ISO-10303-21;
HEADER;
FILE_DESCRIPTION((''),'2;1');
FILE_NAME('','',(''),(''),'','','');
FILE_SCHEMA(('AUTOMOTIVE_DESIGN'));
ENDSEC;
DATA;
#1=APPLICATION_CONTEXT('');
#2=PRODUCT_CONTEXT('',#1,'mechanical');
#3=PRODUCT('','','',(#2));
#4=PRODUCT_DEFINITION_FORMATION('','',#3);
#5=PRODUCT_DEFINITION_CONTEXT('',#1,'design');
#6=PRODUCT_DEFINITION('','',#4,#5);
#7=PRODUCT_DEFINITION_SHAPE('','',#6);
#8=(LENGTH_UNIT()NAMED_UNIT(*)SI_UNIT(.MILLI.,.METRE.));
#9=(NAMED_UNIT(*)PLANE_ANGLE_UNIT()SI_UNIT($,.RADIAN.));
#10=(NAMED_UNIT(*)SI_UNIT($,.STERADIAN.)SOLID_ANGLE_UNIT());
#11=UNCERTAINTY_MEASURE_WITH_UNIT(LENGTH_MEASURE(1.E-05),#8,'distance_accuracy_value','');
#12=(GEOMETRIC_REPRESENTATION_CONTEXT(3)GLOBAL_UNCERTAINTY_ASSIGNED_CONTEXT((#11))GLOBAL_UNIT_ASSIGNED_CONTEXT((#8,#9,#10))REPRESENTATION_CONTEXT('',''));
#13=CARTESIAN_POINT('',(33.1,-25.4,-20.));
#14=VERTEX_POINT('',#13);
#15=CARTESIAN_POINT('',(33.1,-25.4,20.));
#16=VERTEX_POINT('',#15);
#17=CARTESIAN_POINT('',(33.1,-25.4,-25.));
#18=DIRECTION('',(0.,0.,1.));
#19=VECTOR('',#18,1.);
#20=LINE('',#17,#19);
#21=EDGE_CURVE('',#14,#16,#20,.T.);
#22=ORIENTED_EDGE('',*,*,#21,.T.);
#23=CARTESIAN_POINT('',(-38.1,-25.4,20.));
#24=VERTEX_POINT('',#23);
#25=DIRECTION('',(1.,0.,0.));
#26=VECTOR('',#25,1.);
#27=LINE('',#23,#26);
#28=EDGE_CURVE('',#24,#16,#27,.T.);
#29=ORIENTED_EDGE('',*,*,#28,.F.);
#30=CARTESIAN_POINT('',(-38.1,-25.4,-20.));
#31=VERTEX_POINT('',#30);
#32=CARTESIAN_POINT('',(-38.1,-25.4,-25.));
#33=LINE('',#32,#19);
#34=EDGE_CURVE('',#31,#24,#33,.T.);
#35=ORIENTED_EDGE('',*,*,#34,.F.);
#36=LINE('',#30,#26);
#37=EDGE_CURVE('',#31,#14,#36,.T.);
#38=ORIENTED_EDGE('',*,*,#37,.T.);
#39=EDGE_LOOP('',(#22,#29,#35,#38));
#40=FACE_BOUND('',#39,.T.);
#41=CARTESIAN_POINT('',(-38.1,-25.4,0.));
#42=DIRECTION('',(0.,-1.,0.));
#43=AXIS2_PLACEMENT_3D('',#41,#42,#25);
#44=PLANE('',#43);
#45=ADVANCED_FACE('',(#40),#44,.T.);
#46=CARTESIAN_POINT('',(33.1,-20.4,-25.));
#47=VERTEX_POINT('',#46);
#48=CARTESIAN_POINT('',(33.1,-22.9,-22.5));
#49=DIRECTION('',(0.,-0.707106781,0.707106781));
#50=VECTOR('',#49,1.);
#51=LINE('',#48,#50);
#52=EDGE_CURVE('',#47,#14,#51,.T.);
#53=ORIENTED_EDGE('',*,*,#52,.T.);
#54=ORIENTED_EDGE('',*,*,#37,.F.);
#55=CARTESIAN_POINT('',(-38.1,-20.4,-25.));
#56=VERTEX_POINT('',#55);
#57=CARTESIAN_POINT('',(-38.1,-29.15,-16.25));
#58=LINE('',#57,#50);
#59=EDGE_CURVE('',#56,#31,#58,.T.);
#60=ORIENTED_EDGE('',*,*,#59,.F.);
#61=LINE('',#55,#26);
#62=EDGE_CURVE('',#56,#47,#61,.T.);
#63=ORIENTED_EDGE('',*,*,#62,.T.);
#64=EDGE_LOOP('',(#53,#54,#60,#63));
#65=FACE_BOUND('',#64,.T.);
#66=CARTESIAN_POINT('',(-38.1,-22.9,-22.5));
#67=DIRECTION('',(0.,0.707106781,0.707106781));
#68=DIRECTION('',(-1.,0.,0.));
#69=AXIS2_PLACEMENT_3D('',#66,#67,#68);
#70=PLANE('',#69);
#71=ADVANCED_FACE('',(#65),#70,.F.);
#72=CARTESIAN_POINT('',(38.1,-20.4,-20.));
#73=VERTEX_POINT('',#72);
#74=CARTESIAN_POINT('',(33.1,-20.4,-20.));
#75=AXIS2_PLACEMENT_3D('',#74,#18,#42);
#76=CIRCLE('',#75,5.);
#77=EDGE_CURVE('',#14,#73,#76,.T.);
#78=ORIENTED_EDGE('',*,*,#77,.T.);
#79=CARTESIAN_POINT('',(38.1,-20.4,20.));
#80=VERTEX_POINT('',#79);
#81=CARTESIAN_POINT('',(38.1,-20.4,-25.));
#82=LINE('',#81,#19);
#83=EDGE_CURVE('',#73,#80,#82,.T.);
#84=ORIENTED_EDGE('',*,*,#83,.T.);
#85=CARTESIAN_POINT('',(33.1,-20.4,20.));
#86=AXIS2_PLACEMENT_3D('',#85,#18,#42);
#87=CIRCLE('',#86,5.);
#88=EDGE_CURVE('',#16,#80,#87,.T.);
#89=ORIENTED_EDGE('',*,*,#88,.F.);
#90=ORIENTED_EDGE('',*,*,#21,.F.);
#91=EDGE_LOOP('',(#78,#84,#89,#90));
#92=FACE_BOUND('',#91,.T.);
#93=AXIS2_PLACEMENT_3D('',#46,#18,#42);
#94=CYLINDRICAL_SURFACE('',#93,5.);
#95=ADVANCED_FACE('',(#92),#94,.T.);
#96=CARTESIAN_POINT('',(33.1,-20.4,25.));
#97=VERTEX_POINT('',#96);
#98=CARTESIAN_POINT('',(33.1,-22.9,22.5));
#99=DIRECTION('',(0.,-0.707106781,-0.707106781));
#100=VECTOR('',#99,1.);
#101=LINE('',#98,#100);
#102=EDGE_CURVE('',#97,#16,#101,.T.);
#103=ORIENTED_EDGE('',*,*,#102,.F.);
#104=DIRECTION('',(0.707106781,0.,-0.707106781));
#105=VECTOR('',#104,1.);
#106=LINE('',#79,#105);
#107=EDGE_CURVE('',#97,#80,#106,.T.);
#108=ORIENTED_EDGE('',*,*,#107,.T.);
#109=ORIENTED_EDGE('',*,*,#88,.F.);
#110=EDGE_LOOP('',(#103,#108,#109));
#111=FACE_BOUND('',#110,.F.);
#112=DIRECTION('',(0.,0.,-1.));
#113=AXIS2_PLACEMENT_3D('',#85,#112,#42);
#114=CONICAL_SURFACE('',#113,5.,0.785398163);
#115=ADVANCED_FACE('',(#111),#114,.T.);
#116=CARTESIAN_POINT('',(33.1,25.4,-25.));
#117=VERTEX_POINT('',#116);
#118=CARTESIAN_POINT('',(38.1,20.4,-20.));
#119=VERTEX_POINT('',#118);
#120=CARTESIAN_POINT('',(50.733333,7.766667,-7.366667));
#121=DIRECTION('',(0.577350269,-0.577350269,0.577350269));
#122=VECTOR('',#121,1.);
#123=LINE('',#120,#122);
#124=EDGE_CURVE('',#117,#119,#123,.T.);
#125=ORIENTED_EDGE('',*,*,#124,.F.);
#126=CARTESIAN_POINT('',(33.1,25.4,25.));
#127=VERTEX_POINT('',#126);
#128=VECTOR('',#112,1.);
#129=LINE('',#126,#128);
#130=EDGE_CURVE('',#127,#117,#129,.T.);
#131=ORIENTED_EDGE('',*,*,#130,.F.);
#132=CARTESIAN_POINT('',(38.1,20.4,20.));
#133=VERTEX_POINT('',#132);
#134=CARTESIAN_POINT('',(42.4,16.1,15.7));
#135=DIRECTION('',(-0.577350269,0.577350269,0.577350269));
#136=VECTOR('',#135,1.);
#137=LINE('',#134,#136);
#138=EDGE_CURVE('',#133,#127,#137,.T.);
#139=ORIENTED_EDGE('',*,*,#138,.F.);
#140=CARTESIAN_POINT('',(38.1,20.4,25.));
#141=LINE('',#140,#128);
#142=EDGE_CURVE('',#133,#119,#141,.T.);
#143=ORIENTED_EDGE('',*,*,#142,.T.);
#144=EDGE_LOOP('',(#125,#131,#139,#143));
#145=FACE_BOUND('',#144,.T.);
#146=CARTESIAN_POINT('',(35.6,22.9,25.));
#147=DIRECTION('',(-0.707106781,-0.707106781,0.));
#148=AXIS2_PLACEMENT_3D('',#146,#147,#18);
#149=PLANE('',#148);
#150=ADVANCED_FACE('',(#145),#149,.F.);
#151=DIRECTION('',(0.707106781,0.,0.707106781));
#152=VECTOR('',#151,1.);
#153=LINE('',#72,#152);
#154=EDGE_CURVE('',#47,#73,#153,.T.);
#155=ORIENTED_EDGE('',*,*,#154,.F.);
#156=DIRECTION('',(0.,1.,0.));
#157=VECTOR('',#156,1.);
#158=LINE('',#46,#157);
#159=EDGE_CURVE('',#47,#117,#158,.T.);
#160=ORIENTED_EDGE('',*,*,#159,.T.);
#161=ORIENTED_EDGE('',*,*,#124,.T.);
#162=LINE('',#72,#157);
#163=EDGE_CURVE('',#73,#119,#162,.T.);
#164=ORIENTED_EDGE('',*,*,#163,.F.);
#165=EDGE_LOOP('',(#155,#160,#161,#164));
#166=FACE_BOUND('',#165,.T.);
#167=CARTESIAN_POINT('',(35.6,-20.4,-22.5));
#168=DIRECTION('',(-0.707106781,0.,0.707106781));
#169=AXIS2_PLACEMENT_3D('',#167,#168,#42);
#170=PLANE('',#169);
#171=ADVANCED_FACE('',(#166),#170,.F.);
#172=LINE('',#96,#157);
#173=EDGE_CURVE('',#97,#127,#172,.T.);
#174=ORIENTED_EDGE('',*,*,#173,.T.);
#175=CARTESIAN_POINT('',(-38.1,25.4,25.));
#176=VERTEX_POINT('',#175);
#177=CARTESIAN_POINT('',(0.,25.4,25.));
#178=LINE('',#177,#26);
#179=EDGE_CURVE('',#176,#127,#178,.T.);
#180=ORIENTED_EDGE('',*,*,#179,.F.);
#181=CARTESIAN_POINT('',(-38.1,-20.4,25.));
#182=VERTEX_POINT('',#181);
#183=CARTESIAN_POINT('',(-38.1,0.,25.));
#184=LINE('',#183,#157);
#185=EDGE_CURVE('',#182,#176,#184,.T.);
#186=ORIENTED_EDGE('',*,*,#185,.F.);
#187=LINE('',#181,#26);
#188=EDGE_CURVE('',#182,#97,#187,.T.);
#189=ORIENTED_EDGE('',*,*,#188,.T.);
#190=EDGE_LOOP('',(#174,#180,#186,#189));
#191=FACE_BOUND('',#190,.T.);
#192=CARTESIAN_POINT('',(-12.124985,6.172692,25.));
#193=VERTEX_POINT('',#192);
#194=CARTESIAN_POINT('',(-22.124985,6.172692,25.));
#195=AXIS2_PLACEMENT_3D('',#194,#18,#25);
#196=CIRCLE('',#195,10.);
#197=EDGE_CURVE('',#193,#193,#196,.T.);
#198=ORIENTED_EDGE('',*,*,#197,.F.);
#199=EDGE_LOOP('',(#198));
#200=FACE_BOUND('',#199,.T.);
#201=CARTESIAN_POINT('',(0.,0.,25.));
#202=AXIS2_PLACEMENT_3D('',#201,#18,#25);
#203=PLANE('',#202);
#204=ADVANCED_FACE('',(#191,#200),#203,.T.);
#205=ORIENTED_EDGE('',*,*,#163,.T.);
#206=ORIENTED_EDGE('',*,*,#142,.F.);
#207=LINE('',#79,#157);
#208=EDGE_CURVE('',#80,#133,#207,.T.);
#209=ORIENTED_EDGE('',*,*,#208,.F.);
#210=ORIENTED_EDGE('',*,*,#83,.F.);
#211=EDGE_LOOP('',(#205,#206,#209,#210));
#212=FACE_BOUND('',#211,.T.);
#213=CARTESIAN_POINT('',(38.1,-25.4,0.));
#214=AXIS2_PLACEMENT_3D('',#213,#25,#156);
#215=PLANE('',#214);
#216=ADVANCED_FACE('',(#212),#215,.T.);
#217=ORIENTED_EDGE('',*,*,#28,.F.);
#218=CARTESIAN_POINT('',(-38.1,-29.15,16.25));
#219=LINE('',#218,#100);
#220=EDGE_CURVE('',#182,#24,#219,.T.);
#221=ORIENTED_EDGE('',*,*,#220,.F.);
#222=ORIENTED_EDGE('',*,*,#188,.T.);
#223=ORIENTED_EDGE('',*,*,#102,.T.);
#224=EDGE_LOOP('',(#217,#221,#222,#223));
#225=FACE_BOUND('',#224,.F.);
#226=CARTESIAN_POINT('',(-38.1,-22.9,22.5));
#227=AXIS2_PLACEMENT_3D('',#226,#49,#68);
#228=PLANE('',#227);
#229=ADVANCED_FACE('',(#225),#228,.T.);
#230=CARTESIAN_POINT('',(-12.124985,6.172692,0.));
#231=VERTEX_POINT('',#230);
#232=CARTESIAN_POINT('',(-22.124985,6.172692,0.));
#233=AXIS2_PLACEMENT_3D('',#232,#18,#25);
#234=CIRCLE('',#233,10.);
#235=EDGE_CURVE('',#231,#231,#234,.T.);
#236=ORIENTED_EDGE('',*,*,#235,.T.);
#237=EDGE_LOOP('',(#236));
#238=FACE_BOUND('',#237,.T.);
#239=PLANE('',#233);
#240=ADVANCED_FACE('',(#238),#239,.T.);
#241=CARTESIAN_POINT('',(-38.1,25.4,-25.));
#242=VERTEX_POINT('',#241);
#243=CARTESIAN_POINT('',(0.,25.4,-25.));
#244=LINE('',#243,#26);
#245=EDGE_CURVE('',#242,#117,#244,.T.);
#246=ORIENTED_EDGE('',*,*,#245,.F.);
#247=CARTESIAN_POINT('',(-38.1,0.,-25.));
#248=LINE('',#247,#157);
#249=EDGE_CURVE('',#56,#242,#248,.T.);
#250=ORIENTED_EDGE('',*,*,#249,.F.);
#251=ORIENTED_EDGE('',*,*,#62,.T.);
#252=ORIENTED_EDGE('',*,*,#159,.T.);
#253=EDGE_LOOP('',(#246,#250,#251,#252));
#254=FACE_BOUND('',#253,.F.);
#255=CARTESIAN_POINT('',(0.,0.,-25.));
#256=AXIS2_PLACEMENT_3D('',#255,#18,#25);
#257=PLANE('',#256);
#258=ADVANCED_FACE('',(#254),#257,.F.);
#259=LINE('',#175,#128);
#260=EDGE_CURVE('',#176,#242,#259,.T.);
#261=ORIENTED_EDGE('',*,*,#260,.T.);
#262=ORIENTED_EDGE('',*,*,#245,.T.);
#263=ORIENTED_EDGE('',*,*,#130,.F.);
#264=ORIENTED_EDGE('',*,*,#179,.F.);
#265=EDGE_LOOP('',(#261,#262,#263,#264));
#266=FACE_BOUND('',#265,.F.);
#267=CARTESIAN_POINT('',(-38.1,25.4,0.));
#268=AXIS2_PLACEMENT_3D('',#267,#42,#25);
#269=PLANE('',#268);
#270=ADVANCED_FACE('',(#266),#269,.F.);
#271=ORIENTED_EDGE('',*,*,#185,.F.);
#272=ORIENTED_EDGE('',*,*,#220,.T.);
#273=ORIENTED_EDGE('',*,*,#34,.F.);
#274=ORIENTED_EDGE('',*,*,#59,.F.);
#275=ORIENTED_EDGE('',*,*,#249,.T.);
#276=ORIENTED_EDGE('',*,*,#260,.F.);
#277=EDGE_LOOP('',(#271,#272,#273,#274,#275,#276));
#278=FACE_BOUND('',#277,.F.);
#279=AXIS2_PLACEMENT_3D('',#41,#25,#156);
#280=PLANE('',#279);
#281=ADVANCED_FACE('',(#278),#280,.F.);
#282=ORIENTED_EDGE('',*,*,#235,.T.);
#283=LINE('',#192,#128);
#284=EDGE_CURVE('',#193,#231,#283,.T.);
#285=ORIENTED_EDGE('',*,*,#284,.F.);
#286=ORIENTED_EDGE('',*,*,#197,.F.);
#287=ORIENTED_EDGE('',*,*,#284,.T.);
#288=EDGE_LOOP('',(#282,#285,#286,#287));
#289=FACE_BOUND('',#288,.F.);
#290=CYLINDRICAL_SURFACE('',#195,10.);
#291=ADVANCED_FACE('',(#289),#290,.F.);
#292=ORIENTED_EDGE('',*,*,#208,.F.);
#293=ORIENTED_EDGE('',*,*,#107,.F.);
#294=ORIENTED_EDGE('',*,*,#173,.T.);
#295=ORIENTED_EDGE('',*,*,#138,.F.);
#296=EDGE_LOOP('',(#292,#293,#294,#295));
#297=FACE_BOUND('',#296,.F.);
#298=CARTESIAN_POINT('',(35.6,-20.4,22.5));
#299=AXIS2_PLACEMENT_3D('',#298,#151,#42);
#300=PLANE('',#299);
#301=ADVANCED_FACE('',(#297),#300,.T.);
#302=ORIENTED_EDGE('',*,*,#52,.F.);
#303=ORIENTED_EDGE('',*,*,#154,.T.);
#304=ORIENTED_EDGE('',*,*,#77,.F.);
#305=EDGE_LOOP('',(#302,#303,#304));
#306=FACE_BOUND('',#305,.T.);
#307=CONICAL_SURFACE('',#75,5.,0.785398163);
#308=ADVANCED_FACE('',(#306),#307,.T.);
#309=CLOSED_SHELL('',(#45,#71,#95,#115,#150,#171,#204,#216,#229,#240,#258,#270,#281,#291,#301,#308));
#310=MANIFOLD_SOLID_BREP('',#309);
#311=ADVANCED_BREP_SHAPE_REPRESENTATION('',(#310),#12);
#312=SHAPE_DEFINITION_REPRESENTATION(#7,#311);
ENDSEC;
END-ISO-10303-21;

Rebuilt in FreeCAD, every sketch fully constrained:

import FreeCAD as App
import Part
import Sketcher

V = App.Vector
Q = App.Units.Quantity


def edges_at(feature, points):
    """Names of the edges that pass closest to the given points."""
    edges = feature.Shape.Edges
    near = lambda p: min(range(len(edges)), key=lambda i: edges[i].distToShape(Part.Vertex(*p))[0])
    return sorted({f"Edge{near(p) + 1}" for p in points})


def add_polygon(sketch, points):
    """Adds a closed chain of lines whose ends are joined by coincident constraints."""
    first, n = sketch.GeometryCount, len(points)
    for a, b in zip(points, points[1:] + points[:1]):
        sketch.addGeometry(Part.LineSegment(App.Vector(*a, 0), App.Vector(*b, 0)), False)
    for i in range(n):
        sketch.addConstraint(Sketcher.Constraint("Coincident", first + i, 2, first + (i + 1) % n, 1))

doc = App.newDocument("Part")
params = doc.addObject("Spreadsheet::Sheet", "Params")
for row, (alias, value) in enumerate([
    ("sketch1_width", "76.2 mm"),
    ("sketch1_height", "50.8 mm"),
    ("pad1_length", "50 mm"),
    ("sketch2_diameter", "20 mm"),
    ("pocket1_length", "25 mm"),
    ("fillet_radius", "5 mm"),
    ("chamfer_size", "5 mm"),
], start=1):
    params.set(f"A{row}", alias)
    params.set(f"B{row}", "=" + value)
    params.setAlias(f"B{row}", alias)

body = doc.addObject("PartDesign::Body", "Body")

sketch1 = body.newObject("Sketcher::SketchObject", "Sketch")
sketch1.AttachmentSupport = (doc.getObject("XY_Plane"), [""])
sketch1.MapMode = "FlatFace"
add_polygon(sketch1, [(-38, 25), (-38, -25), (38, -25), (38, 25)])
sketch1.addConstraint(Sketcher.Constraint("Vertical", 0))
sketch1.addConstraint(Sketcher.Constraint("Horizontal", 1))
sketch1.addConstraint(Sketcher.Constraint("Vertical", 2))
sketch1.addConstraint(Sketcher.Constraint("Horizontal", 3))
sketch1.addConstraint(Sketcher.Constraint("Symmetric", 0, 2, 2, 2, -1, 1))
sketch1.addConstraint(Sketcher.Constraint("DistanceX", 1, 1, 1, 2, Q("76.2 mm")))
sketch1.addConstraint(Sketcher.Constraint("DistanceY", 0, 2, 0, 1, Q("50.8 mm")))
sketch1.setExpression("Constraints[9]", "Params.sketch1_width")
sketch1.setExpression("Constraints[10]", "Params.sketch1_height")
pad1 = body.newObject("PartDesign::Pad", "Pad")
pad1.Profile = sketch1
pad1.setExpression("Length", "Params.pad1_length")
pad1.Midplane = True

sketch2 = body.newObject("Sketcher::SketchObject", "Sketch001")
sketch2.AttachmentSupport = (doc.getObject("XY_Plane"), [""])
sketch2.MapMode = "FlatFace"
sketch2.AttachmentOffset = App.Placement(V(0, 0, 25), App.Rotation())
sketch2.addGeometry(Part.Circle(V(-22, 6, 0), V(0, 0, 1), 10), False)
sketch2.addConstraint(Sketcher.Constraint("Diameter", 0, Q("20 mm")))
sketch2.addConstraint(Sketcher.Constraint("DistanceY", -1, 1, 0, 3, Q("6.172692 mm")))
sketch2.addConstraint(Sketcher.Constraint("DistanceX", 0, 3, -1, 1, Q("22.124985 mm")))
sketch2.setExpression("Constraints[0]", "Params.sketch2_diameter")
pocket1 = body.newObject("PartDesign::Pocket", "Pocket")
pocket1.Profile = sketch2
pocket1.setExpression("Length", "Params.pocket1_length")
doc.recompute()

fillet = body.newObject("PartDesign::Fillet", "Fillet")
fillet.Base = (pocket1, edges_at(pocket1, [(38.1, -25.4, 0)]))
fillet.setExpression("Radius", "Params.fillet_radius")
doc.recompute()

chamfer = body.newObject("PartDesign::Chamfer", "Chamfer")
chamfer.Base = (fillet, edges_at(fillet, [
    (38.1, 2.5, -25),
    (38.1, -20.4, 0),
    (38.1, 25.4, 0),
    (38.1, 2.5, 25),
]))
chamfer.setExpression("Size", "Params.chamfer_size")

doc.recompute()
